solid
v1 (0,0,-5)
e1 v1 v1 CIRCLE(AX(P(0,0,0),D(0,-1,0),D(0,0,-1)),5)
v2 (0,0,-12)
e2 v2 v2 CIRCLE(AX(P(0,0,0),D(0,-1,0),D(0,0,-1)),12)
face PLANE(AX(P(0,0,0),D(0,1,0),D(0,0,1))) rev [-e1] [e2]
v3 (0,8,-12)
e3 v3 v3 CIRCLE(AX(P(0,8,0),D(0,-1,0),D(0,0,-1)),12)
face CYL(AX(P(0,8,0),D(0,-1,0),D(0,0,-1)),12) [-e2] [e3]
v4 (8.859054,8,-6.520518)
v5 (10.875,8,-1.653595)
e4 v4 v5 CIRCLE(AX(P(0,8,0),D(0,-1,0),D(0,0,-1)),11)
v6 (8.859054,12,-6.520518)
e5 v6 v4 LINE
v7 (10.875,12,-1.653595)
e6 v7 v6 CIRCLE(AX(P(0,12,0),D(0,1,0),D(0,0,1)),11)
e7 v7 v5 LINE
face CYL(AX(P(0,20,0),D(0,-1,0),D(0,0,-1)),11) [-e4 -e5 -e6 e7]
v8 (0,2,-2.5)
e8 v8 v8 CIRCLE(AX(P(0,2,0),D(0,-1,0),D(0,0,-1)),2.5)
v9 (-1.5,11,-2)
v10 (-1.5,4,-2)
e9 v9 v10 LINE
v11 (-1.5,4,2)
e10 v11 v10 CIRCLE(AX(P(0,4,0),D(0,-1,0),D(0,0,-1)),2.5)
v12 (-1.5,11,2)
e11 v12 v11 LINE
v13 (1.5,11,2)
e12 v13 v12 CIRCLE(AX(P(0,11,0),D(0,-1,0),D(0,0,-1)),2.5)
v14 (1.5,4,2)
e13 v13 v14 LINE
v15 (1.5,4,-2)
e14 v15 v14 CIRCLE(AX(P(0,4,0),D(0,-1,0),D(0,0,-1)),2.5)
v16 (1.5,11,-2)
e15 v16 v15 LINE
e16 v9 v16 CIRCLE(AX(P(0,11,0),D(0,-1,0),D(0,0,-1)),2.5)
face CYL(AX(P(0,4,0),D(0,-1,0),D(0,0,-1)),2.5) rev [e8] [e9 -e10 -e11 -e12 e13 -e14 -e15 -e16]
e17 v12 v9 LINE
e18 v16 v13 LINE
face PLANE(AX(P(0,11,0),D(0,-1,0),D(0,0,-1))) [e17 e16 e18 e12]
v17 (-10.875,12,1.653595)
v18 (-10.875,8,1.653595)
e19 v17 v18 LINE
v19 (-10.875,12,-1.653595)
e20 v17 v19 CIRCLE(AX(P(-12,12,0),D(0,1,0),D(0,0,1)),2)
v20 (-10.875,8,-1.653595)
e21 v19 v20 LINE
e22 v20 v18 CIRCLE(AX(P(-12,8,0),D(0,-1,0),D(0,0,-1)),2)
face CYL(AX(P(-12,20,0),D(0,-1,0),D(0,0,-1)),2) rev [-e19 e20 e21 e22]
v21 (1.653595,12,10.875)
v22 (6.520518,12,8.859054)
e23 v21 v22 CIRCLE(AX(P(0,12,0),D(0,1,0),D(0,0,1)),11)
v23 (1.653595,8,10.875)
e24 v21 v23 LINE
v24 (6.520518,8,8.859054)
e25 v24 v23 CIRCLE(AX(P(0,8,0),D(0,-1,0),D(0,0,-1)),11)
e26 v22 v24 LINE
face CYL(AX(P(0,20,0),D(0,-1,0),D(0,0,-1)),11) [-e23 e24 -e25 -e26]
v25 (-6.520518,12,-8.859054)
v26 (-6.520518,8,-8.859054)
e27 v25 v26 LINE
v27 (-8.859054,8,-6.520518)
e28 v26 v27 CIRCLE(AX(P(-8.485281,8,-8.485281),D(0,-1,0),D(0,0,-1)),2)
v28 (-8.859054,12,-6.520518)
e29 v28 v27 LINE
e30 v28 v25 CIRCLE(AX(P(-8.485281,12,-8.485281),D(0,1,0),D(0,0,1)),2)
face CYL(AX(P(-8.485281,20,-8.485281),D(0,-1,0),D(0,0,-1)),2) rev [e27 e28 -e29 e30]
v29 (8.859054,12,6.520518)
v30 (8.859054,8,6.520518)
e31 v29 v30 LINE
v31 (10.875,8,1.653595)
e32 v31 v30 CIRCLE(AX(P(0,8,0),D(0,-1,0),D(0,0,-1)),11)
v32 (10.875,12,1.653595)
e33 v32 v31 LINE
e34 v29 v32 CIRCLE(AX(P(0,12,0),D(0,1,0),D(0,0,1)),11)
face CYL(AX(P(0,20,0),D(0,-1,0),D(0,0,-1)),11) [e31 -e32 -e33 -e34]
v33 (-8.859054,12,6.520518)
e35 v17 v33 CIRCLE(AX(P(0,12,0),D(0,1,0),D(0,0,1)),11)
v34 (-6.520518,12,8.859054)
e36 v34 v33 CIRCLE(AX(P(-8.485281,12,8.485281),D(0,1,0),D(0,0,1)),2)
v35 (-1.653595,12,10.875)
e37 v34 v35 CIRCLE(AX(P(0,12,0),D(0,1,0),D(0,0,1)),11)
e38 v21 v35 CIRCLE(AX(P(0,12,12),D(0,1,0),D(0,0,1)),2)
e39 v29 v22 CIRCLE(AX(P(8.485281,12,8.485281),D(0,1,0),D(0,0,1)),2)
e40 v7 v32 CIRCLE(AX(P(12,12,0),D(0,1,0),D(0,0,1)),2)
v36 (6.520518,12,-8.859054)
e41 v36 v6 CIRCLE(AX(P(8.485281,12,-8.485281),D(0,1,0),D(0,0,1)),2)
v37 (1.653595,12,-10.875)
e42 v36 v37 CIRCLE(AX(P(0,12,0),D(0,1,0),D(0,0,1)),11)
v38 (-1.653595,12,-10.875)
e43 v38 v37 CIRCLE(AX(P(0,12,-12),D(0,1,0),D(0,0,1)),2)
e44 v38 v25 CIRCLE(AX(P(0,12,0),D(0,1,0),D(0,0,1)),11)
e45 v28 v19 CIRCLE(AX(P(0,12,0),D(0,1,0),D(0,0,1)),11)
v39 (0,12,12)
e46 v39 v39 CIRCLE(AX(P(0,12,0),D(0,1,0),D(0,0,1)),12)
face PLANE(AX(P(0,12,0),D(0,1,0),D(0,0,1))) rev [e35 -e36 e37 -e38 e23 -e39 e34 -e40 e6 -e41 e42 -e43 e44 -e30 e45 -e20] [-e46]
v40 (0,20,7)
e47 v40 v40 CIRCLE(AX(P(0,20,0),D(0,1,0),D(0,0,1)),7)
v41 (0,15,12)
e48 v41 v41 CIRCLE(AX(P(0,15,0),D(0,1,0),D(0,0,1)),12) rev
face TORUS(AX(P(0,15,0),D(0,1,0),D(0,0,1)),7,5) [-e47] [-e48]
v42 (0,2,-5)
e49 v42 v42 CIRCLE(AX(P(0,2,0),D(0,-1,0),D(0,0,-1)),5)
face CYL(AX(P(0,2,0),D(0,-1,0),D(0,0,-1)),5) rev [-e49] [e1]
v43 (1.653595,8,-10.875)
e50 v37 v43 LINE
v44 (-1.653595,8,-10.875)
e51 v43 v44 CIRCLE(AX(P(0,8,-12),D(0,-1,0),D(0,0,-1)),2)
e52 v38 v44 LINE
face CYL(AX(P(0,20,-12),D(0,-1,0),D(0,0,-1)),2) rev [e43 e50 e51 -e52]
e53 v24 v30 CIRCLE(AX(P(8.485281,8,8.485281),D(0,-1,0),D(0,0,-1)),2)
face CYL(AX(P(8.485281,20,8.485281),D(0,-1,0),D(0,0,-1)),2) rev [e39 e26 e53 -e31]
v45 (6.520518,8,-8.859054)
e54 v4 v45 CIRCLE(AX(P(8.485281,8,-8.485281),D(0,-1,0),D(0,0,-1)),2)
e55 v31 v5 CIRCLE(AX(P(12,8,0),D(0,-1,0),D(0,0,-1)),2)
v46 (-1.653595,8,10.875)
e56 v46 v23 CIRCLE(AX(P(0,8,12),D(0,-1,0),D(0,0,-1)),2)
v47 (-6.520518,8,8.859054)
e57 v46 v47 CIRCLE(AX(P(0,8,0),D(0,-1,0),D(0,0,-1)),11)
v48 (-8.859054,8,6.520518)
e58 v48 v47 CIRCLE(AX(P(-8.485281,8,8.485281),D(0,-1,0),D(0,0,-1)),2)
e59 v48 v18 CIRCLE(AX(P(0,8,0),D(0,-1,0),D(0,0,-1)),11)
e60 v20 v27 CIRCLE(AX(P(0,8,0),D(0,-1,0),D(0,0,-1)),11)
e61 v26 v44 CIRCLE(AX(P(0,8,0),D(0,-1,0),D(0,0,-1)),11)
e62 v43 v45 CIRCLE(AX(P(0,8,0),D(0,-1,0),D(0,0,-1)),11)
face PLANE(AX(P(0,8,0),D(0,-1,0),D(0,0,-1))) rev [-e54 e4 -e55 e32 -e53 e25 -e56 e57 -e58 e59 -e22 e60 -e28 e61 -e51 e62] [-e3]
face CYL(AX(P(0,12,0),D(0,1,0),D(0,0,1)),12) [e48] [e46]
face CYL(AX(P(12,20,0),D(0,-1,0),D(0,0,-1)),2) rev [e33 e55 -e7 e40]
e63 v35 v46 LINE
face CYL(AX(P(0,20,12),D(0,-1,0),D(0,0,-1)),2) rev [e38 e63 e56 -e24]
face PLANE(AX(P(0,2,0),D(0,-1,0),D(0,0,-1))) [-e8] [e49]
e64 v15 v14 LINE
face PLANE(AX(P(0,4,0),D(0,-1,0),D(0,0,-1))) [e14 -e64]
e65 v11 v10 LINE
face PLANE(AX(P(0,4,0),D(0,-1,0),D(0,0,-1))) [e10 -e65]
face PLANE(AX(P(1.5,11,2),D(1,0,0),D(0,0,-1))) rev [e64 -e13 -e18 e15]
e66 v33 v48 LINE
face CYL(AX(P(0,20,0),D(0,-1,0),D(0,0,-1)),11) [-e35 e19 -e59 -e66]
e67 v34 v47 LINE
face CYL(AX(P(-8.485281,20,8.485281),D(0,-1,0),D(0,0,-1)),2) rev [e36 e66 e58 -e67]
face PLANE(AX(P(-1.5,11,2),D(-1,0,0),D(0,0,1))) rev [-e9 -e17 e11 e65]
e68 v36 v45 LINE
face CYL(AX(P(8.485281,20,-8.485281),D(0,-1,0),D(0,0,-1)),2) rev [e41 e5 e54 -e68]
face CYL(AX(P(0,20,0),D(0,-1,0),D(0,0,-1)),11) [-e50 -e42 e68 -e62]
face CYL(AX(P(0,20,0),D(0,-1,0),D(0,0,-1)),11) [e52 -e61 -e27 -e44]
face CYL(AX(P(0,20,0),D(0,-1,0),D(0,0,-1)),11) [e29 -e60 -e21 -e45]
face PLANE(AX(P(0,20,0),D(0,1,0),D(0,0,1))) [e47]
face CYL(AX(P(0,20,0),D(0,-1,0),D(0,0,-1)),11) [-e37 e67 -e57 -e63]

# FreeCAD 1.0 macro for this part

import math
import FreeCAD as App
import Part
import Sketcher
Q = App.Units.Quantity


def edges_at(feature, points):
    """Names of the edges that pass closest to the given points."""
    edges = feature.Shape.Edges
    near = lambda p: min(range(len(edges)), key=lambda i: edges[i].distToShape(Part.Vertex(*p))[0])
    return sorted({f"Edge{near(p) + 1}" for p in points})

doc = App.newDocument("Part")
params = doc.addObject("Spreadsheet::Sheet", "Params")
for row, (alias, value) in enumerate([
    ("sketch1_radius", "2 mm"),
    ("sketch1_radius2", "11 mm"),
    ("pad1_length", "20 mm"),
    ("sketch2_diameter", "24 mm"),
    ("pad2_length", "8 mm"),
    ("sketch3_diameter", "24 mm"),
    ("pad3_length", "8 mm"),
    ("sketch4_diameter", "10 mm"),
    ("pocket1_length", "2 mm"),
    ("sketch5_diameter", "5 mm"),
    ("pocket2_length", "2 mm"),
    ("sketch6_radius", "2.5 mm"),
    ("sketch6_height", "4 mm"),
    ("pocket3_length", "7 mm"),
    ("fillet_radius", "5 mm"),
], start=1):
    params.set(f"A{row}", alias)
    params.set(f"B{row}", "=" + value)
    params.setAlias(f"B{row}", alias)

body = doc.addObject("PartDesign::Body", "Body")

# Sketch on XZ plane
sketch1 = body.newObject("Sketcher::SketchObject", "Sketch")
sketch1.AttachmentSupport = (doc.getObject("XZ_Plane"), [""])
sketch1.MapMode = "FlatFace"
sketch1.addGeometry([
    Part.ArcOfCircle(Part.Circle(App.Vector(12, 0, 0), App.Vector(0, 0, 1), 2), math.radians(124), math.radians(236)),  # 0
    Part.ArcOfCircle(Part.Circle(App.Vector(0, 0, 0), App.Vector(0, 0, 1), 11), math.radians(-36), math.radians(-9)),  # 1
    Part.ArcOfCircle(Part.Circle(App.Vector(8.49, -8.49, 0), App.Vector(0, 0, 1), 2), math.radians(79), math.radians(191)),  # 2
    Part.ArcOfCircle(Part.Circle(App.Vector(0, 0, 0), App.Vector(0, 0, 1), 11), math.radians(-81), math.radians(-54)),  # 3
    Part.ArcOfCircle(Part.Circle(App.Vector(0, -12, 0), App.Vector(0, 0, 1), 2), math.radians(34), math.radians(146)),  # 4
    Part.ArcOfCircle(Part.Circle(App.Vector(0, 0, 0), App.Vector(0, 0, 1), 11), math.radians(-126), math.radians(-99)),  # 5
    Part.ArcOfCircle(Part.Circle(App.Vector(-8.49, -8.49, 0), App.Vector(0, 0, 1), 2), math.radians(-10.77), math.radians(0)),  # 6
    Part.ArcOfCircle(Part.Circle(App.Vector(-8.49, -8.49, 0), App.Vector(0, 0, 1), 2), math.radians(0), math.radians(101)),  # 7
    Part.ArcOfCircle(Part.Circle(App.Vector(0, 0, 0), App.Vector(0, 0, 1), 11), math.radians(-171), math.radians(-144)),  # 8
    Part.ArcOfCircle(Part.Circle(App.Vector(-12, 0, 0), App.Vector(0, 0, 1), 2), math.radians(-56), math.radians(0)),  # 9
    Part.ArcOfCircle(Part.Circle(App.Vector(-12, 0, 0), App.Vector(0, 0, 1), 2), math.radians(0), math.radians(56)),  # 10
    Part.ArcOfCircle(Part.Circle(App.Vector(0, 0, 0), App.Vector(0, 0, 1), 11), math.radians(144), math.radians(171)),  # 11
    Part.ArcOfCircle(Part.Circle(App.Vector(-8.49, 8.49, 0), App.Vector(0, 0, 1), 2), math.radians(-101), math.radians(0)),  # 12
    Part.ArcOfCircle(Part.Circle(App.Vector(-8.49, 8.49, 0), App.Vector(0, 0, 1), 2), math.radians(0), math.radians(10.77)),  # 13
    Part.ArcOfCircle(Part.Circle(App.Vector(0, 0, 0), App.Vector(0, 0, 1), 11), math.radians(99), math.radians(126)),  # 14
    Part.ArcOfCircle(Part.Circle(App.Vector(0, 12, 0), App.Vector(0, 0, 1), 2), math.radians(-146), math.radians(-34)),  # 15
    Part.ArcOfCircle(Part.Circle(App.Vector(0, 0, 0), App.Vector(0, 0, 1), 11), math.radians(54), math.radians(81)),  # 16
    Part.ArcOfCircle(Part.Circle(App.Vector(8.49, 8.49, 0), App.Vector(0, 0, 1), 2), math.radians(169), math.radians(281)),  # 17
    Part.ArcOfCircle(Part.Circle(App.Vector(0, 0, 0), App.Vector(0, 0, 1), 11), math.radians(9), math.radians(36)),  # 18
], False)
sketch1.addConstraint([
    Sketcher.Constraint("Coincident", 0, 2, 1, 2),
    Sketcher.Constraint("Coincident", 1, 1, 2, 1),
    Sketcher.Constraint("Coincident", 2, 2, 3, 2),
    Sketcher.Constraint("Coincident", 3, 1, 4, 1),
    Sketcher.Constraint("Coincident", 4, 2, 5, 2),
    Sketcher.Constraint("Coincident", 5, 1, 6, 1),
    Sketcher.Constraint("Tangent", 6, 2, 7, 1),
    Sketcher.Constraint("Coincident", 7, 2, 8, 2),
    Sketcher.Constraint("Coincident", 8, 1, 9, 1),
    Sketcher.Constraint("Tangent", 9, 2, 10, 1),
    Sketcher.Constraint("Coincident", 10, 2, 11, 2),
    Sketcher.Constraint("Coincident", 11, 1, 12, 1),
    Sketcher.Constraint("Tangent", 12, 2, 13, 1),
    Sketcher.Constraint("Coincident", 13, 2, 14, 2),
    Sketcher.Constraint("Coincident", 14, 1, 15, 1),
    Sketcher.Constraint("Coincident", 15, 2, 16, 2),
    Sketcher.Constraint("Coincident", 16, 1, 17, 1),
    Sketcher.Constraint("Coincident", 17, 2, 18, 2),
    Sketcher.Constraint("Coincident", 18, 1, 0, 1),
    Sketcher.Constraint("Coincident", 1, 3, -1, 1),
    Sketcher.Constraint("Coincident", 3, 3, -1, 1),
    Sketcher.Constraint("Coincident", 5, 3, -1, 1),
    Sketcher.Constraint("Coincident", 8, 3, -1, 1),
    Sketcher.Constraint("Coincident", 11, 3, -1, 1),
    Sketcher.Constraint("Coincident", 14, 3, -1, 1),
    Sketcher.Constraint("Coincident", 16, 3, -1, 1),
    Sketcher.Constraint("Coincident", 18, 3, -1, 1),
    Sketcher.Constraint("Equal", 0, 2),
    Sketcher.Constraint("Equal", 1, 3),
    Sketcher.Constraint("Equal", 2, 4),
    Sketcher.Constraint("Equal", 3, 5),
    Sketcher.Constraint("Equal", 4, 6),
    Sketcher.Constraint("Equal", 6, 7),
    Sketcher.Constraint("Equal", 5, 8),
    Sketcher.Constraint("Equal", 7, 9),
    Sketcher.Constraint("Equal", 9, 10),
    Sketcher.Constraint("Equal", 8, 11),
    Sketcher.Constraint("Equal", 10, 12),
    Sketcher.Constraint("Equal", 12, 13),
    Sketcher.Constraint("Equal", 11, 14),
    Sketcher.Constraint("Equal", 13, 15),
    Sketcher.Constraint("Equal", 14, 16),
    Sketcher.Constraint("Equal", 15, 17),
    Sketcher.Constraint("Equal", 16, 18),
    Sketcher.Constraint("Symmetric", 0, 3, 9, 3, -1, 1),
    Sketcher.Constraint("Symmetric", 2, 3, 12, 3, -1, 1),
    Sketcher.Constraint("Symmetric", 4, 3, 15, 3, -1, 1),
    Sketcher.Constraint("Symmetric", 6, 3, 17, 3, -1, 1),
    Sketcher.Constraint("Symmetric", 2, 3, 6, 3, -2),
    Sketcher.Constraint("PointOnObject", 0, 3, -1),
    Sketcher.Constraint("PointOnObject", 4, 3, -2),
    Sketcher.Constraint("PointOnObject", 9, 2, -1),
    Sketcher.Constraint("Horizontal", 7, 3, 6, 2),
    Sketcher.Constraint("Horizontal", 17, 3, 12, 2),
    Sketcher.Constraint("Radius", 0, Q("2 mm")),
    Sketcher.Constraint("Radius", 1, Q("11 mm")),
    Sketcher.Constraint("DistanceX", -1, 1, 0, 3, Q("12 mm")),
    Sketcher.Constraint("DistanceY", 4, 3, -1, 1, Q("12 mm")),
    Sketcher.Constraint("DistanceX", -1, 1, 2, 3, Q("8.485281 mm")),
    Sketcher.Constraint("DistanceY", 2, 3, -1, 1, Q("8.485281 mm")),
])
sketch1.setExpression("Constraints[54]", "Params.sketch1_radius")
sketch1.setExpression("Constraints[55]", "Params.sketch1_radius2")
pad1 = body.newObject("PartDesign::Pad", "Pad")
pad1.Profile = sketch1
pad1.setExpression("Length", "Params.pad1_length")
pad1.Reversed = True

# Sketch on XZ plane
sketch2 = body.newObject("Sketcher::SketchObject", "Sketch001")
sketch2.AttachmentSupport = (doc.getObject("XZ_Plane"), [""])
sketch2.MapMode = "FlatFace"
sketch2.addGeometry(Part.Circle(App.Vector(0, 0, 0), App.Vector(0, 0, 1), 12), False)
sketch2.addConstraint([
    Sketcher.Constraint("Coincident", 0, 3, -1, 1),
    Sketcher.Constraint("Diameter", 0, Q("24 mm")),
])
sketch2.setExpression("Constraints[1]", "Params.sketch2_diameter")
pad2 = body.newObject("PartDesign::Pad", "Pad001")
pad2.Profile = sketch2
pad2.setExpression("Length", "Params.pad2_length")
pad2.Reversed = True

# Sketch on XZ plane
sketch3 = body.newObject("Sketcher::SketchObject", "Sketch002")
sketch3.AttachmentSupport = (doc.getObject("XZ_Plane"), [""])
sketch3.MapMode = "FlatFace"
sketch3.AttachmentOffset = App.Placement(App.Vector(0, 0, -12), App.Rotation())
sketch3.addGeometry(Part.Circle(App.Vector(0, 0, 0), App.Vector(0, 0, 1), 12), False)
sketch3.addConstraint([
    Sketcher.Constraint("Coincident", 0, 3, -1, 1),
    Sketcher.Constraint("Diameter", 0, Q("24 mm")),
])
sketch3.setExpression("Constraints[1]", "Params.sketch3_diameter")
pad3 = body.newObject("PartDesign::Pad", "Pad002")
pad3.Profile = sketch3
pad3.setExpression("Length", "Params.pad3_length")
pad3.Reversed = True

# Sketch on XZ plane
sketch4 = body.newObject("Sketcher::SketchObject", "Sketch003")
sketch4.AttachmentSupport = (doc.getObject("XZ_Plane"), [""])
sketch4.MapMode = "FlatFace"
sketch4.addGeometry(Part.Circle(App.Vector(0, 0, 0), App.Vector(0, 0, 1), 5), False)
sketch4.addConstraint([
    Sketcher.Constraint("Coincident", 0, 3, -1, 1),
    Sketcher.Constraint("Diameter", 0, Q("10 mm")),
])
sketch4.setExpression("Constraints[1]", "Params.sketch4_diameter")
pocket1 = body.newObject("PartDesign::Pocket", "Pocket")
pocket1.Profile = sketch4
pocket1.setExpression("Length", "Params.pocket1_length")

# Sketch on XZ plane
sketch5 = body.newObject("Sketcher::SketchObject", "Sketch004")
sketch5.AttachmentSupport = (doc.getObject("XZ_Plane"), [""])
sketch5.MapMode = "FlatFace"
sketch5.AttachmentOffset = App.Placement(App.Vector(0, 0, -2), App.Rotation())
sketch5.addGeometry(Part.Circle(App.Vector(0, 0, 0), App.Vector(0, 0, 1), 2.5), False)
sketch5.addConstraint([
    Sketcher.Constraint("Coincident", 0, 3, -1, 1),
    Sketcher.Constraint("Diameter", 0, Q("5 mm")),
])
sketch5.setExpression("Constraints[1]", "Params.sketch5_diameter")
pocket2 = body.newObject("PartDesign::Pocket", "Pocket001")
pocket2.Profile = sketch5
pocket2.setExpression("Length", "Params.pocket2_length")

# Sketch on XZ plane
sketch6 = body.newObject("Sketcher::SketchObject", "Sketch005")
sketch6.AttachmentSupport = (doc.getObject("XZ_Plane"), [""])
sketch6.MapMode = "FlatFace"
sketch6.AttachmentOffset = App.Placement(App.Vector(0, 0, -4), App.Rotation())
sketch6.addGeometry([
    Part.LineSegment(App.Vector(-1.5, 2, 0), App.Vector(-1.5, -2, 0)),
    Part.ArcOfCircle(Part.Circle(App.Vector(0, 0, 0), App.Vector(0, 0, 1), 2.5), math.radians(-127), math.radians(-53)),
    Part.LineSegment(App.Vector(1.5, -2, 0), App.Vector(1.5, 2, 0)),
    Part.ArcOfCircle(Part.Circle(App.Vector(0, 0, 0), App.Vector(0, 0, 1), 2.5), math.radians(53), math.radians(127)),
], False)
sketch6.addConstraint([
    Sketcher.Constraint("Coincident", 0, 2, 1, 1),
    Sketcher.Constraint("Coincident", 1, 2, 2, 1),
    Sketcher.Constraint("Coincident", 2, 2, 3, 1),
    Sketcher.Constraint("Coincident", 3, 2, 0, 1),
    Sketcher.Constraint("Vertical", 0),
    Sketcher.Constraint("Vertical", 2),
    Sketcher.Constraint("Coincident", 1, 3, -1, 1),
    Sketcher.Constraint("Coincident", 3, 3, -1, 1),
    Sketcher.Constraint("Equal", 1, 3),
    Sketcher.Constraint("Horizontal", 0, 2, 1, 2),
    Sketcher.Constraint("Radius", 1, Q("2.5 mm")),
    Sketcher.Constraint("DistanceY", 0, 2, 0, 1, Q("4 mm")),
])
sketch6.setExpression("Constraints[10]", "Params.sketch6_radius")
sketch6.setExpression("Constraints[11]", "Params.sketch6_height")
pocket3 = body.newObject("PartDesign::Pocket", "Pocket002")
pocket3.Profile = sketch6
pocket3.setExpression("Length", "Params.pocket3_length")
doc.recompute()

fillet = body.newObject("PartDesign::Fillet", "Fillet")
fillet.Base = (pocket3, edges_at(pocket3, [(0, 20, 12)]))
fillet.setExpression("Radius", "Params.fillet_radius")

doc.recompute()
